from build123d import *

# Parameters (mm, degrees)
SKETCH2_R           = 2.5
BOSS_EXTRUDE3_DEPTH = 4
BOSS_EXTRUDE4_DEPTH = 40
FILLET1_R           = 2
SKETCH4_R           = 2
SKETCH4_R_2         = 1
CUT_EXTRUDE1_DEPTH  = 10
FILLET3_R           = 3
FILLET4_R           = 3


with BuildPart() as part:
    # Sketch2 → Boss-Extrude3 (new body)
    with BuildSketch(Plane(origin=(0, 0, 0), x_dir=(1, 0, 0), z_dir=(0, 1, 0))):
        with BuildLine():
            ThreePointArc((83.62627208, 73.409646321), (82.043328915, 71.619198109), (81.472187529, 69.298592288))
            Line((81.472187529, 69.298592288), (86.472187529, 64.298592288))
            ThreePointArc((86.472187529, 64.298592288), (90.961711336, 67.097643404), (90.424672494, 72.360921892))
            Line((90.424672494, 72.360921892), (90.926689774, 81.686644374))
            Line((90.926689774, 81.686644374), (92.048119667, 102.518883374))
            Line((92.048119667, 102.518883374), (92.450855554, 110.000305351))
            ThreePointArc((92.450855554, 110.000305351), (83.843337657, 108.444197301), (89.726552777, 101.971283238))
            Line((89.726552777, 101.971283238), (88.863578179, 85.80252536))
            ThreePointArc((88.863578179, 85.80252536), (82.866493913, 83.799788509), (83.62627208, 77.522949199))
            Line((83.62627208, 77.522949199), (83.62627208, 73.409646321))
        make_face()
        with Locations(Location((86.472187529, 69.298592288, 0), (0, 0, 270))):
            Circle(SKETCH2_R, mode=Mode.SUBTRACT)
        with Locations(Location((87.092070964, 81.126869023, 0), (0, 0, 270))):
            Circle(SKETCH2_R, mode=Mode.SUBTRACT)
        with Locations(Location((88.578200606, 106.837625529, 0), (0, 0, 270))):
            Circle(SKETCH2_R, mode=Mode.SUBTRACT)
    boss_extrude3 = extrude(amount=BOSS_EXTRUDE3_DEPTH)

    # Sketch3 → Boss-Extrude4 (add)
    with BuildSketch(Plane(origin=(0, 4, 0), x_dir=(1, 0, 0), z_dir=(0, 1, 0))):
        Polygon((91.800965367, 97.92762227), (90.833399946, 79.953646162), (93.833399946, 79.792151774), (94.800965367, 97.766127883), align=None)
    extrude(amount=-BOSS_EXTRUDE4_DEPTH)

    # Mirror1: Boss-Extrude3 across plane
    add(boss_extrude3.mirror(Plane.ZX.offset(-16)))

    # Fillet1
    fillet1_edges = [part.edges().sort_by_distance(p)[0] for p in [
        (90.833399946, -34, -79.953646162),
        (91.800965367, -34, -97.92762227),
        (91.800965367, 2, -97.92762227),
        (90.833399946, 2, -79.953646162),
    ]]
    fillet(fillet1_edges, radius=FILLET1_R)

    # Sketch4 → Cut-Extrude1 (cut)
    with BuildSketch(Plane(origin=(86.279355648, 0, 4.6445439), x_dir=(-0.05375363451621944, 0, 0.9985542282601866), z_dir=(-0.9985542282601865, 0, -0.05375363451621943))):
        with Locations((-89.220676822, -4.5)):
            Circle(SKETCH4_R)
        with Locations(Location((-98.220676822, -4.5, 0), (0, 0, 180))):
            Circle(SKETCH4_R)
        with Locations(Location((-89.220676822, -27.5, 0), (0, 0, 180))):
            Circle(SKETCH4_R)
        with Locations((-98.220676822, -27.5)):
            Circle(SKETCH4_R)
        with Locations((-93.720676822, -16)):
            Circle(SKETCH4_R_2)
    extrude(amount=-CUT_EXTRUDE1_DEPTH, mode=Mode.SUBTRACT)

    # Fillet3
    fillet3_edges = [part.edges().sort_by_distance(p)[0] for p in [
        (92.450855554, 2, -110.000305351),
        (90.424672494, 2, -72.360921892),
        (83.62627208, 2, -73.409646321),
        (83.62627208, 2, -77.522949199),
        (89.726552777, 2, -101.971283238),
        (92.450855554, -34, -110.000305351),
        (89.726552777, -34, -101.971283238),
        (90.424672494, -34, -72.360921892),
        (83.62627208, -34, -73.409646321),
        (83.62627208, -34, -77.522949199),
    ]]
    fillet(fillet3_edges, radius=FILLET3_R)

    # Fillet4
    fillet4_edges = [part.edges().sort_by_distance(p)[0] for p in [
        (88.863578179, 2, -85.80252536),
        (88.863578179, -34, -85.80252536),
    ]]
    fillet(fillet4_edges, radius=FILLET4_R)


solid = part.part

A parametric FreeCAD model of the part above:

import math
import FreeCAD as App
import Part
import Sketcher
Q = App.Units.Quantity


def edges_at(feature, points):
    """Names of the edges that pass closest to the given points."""
    edges = feature.Shape.Edges
    near = lambda p: min(range(len(edges)), key=lambda i: edges[i].distToShape(Part.Vertex(*p))[0])
    return sorted({f"Edge{near(p) + 1}" for p in points})


def add_polygon(sketch, points):
    """Adds a closed chain of lines whose ends are joined by coincident constraints."""
    first, n = sketch.GeometryCount, len(points)
    for a, b in zip(points, points[1:] + points[:1]):
        sketch.addGeometry(Part.LineSegment(App.Vector(*a, 0), App.Vector(*b, 0)), False)
    for i in range(n):
        sketch.addConstraint(Sketcher.Constraint("Coincident", first + i, 2, first + (i + 1) % n, 1))

doc = App.newDocument("Part")
body = doc.addObject("PartDesign::Body", "Body")

# Sketch on XZ plane
sketch1 = doc.addObject("Sketcher::SketchObject", "Sketch")
body.addObject(sketch1)
sketch1.AttachmentSupport = (doc.XZ_Plane, [""])
sketch1.MapMode = "FlatFace"
sketch1.addGeometry([
    Part.ArcOfCircle(Part.Circle(App.Vector(86.472188, -69.298592, 0), App.Vector(0, 0, 1), 5), math.radians(-180), math.radians(-124.69328)),  # 0
    Part.LineSegment(App.Vector(81.472188, -69.298592, 0), App.Vector(86.472188, -64.298592, 0)),  # 1
    Part.ArcOfCircle(Part.Circle(App.Vector(86.472188, -69.298592, 0), App.Vector(0, 0, 1), 5), math.radians(-37.768019), math.radians(90)),  # 2
    Part.LineSegment(App.Vector(90.424672, -72.360922, 0), App.Vector(90.92669, -81.686644, 0)),  # 3
    Part.LineSegment(App.Vector(90.92669, -81.686644, 0), App.Vector(92.04812, -102.518883, 0)),  # 4
    Part.LineSegment(App.Vector(92.04812, -102.518883, 0), App.Vector(92.450856, -110.000305, 0)),  # 5
    Part.ArcOfCircle(Part.Circle(App.Vector(88.578201, -106.837626, 0), App.Vector(0, 0, 1), 5), math.radians(76.72233), math.radians(320.76253)),  # 6
    Part.LineSegment(App.Vector(89.726553, -101.971283, 0), App.Vector(88.863578, -85.802525, 0)),  # 7
    Part.ArcOfCircle(Part.Circle(App.Vector(87.092071, -81.126869, 0), App.Vector(0, 0, 1), 5), math.radians(133.880756), math.radians(290.750638)),  # 8
    Part.LineSegment(App.Vector(83.626272, -77.522949, 0), App.Vector(83.626272, -73.409646, 0)),  # 9
    Part.Circle(App.Vector(86.472188, -69.298592, 0), App.Vector(0, 0, 1), 2.5),  # 10
    Part.Circle(App.Vector(87.092071, -81.126869, 0), App.Vector(0, 0, 1), 2.5),  # 11
    Part.Circle(App.Vector(88.578201, -106.837626, 0), App.Vector(0, 0, 1), 2.5),  # 12
], False)
sketch1.addConstraint([
    Sketcher.Constraint("Coincident", 0, 1, 1, 1),
    Sketcher.Constraint("Coincident", 1, 2, 2, 2),
    Sketcher.Constraint("Coincident", 2, 1, 3, 1),
    Sketcher.Constraint("Coincident", 3, 2, 4, 1),
    Sketcher.Constraint("Coincident", 4, 2, 5, 1),
    Sketcher.Constraint("Coincident", 5, 2, 6, 2),
    Sketcher.Constraint("Coincident", 6, 1, 7, 1),
    Sketcher.Constraint("Coincident", 7, 2, 8, 2),
    Sketcher.Constraint("Coincident", 8, 1, 9, 1),
    Sketcher.Constraint("Coincident", 9, 2, 0, 2),
    Sketcher.Constraint("Vertical", 9),
    Sketcher.Constraint("Coincident", 2, 3, 0, 3),
    Sketcher.Constraint("Coincident", 10, 3, 0, 3),
    Sketcher.Constraint("Coincident", 11, 3, 8, 3),
    Sketcher.Constraint("Coincident", 12, 3, 6, 3),
    Sketcher.Constraint("Diameter", 10, Q("5 mm")),
    Sketcher.Constraint("Diameter", 11, Q("5 mm")),
    Sketcher.Constraint("Diameter", 12, Q("5 mm")),
    Sketcher.Constraint("Radius", 0, Q("5 mm")),
    Sketcher.Constraint("Radius", 2, Q("5 mm")),
    Sketcher.Constraint("Radius", 6, Q("5 mm")),
    Sketcher.Constraint("Radius", 8, Q("5 mm")),
    Sketcher.Constraint("DistanceX", 0, 1, 1, 2, Q("5 mm")),
    Sketcher.Constraint("DistanceY", 0, 1, 1, 2, Q("5 mm")),
    Sketcher.Constraint("Distance", 4, Q("20.862401 mm")),
    Sketcher.Constraint("DistanceX", -1, 1, 6, 3, Q("88.578201 mm")),
    Sketcher.Constraint("DistanceX", 8, 3, 2, 1, Q("3.332602 mm")),
    Sketcher.Constraint("DistanceY", 4, 2, 6, 1, Q("0.5476 mm")),
    Sketcher.Constraint("DistanceX", 8, 1, 8, 3, Q("3.465799 mm")),
    Sketcher.Constraint("Distance", 7, Q("16.191771 mm")),
    Sketcher.Constraint("DistanceY", 9, 1, 9, 2, Q("4.113303 mm")),
    Sketcher.Constraint("DistanceX", -1, 1, 8, 3, Q("87.092071 mm")),
    Sketcher.Constraint("DistanceY", 8, 3, -1, 1, Q("81.126869 mm")),
    Sketcher.Constraint("DistanceY", 2, 1, -1, 1, Q("72.360922 mm")),
    Sketcher.Constraint("DistanceX", -1, 1, 3, 2, Q("90.92669 mm")),
    Sketcher.Constraint("DistanceX", -1, 1, 4, 2, Q("92.04812 mm")),
    Sketcher.Constraint("DistanceX", -1, 1, 7, 2, Q("88.863578 mm")),
    Sketcher.Constraint("DistanceY", 5, 2, 6, 3, Q("3.16268 mm")),
    Sketcher.Constraint("DistanceY", 5, 2, 4, 2, Q("7.481422 mm")),
])
pad1 = doc.addObject("PartDesign::Pad", "Pad")
body.addObject(pad1)
pad1.Profile = sketch1
pad1.Length = 4
pad1.Reversed = True

# Sketch on XZ plane
sketch2 = doc.addObject("Sketcher::SketchObject", "Sketch001")
body.addObject(sketch2)
sketch2.AttachmentSupport = (doc.XZ_Plane, [""])
sketch2.MapMode = "FlatFace"
sketch2.AttachmentOffset = App.Placement(App.Vector(0, 0, -4), App.Rotation())
add_polygon(sketch2, [(91.800965, -97.927622), (90.8334, -79.953646), (93.8334, -79.792152), (94.800965, -97.766128)])  # lines 0-3
sketch2.addConstraint([
    Sketcher.Constraint("Perpendicular", 0, 1),
    Sketcher.Constraint("Perpendicular", 1, 2),
    Sketcher.Constraint("Perpendicular", 2, 3),
    Sketcher.Constraint("Distance", 0, Q("18 mm")),
    Sketcher.Constraint("DistanceX", 0, 2, 1, 2, Q("3 mm")),
    Sketcher.Constraint("DistanceX", -1, 1, 0, 2, Q("90.8334 mm")),
    Sketcher.Constraint("DistanceY", 1, 2, -1, 1, Q("79.792152 mm")),
    Sketcher.Constraint("DistanceY", 2, 2, 0, 2, Q("17.812482 mm")),
])
pad2 = doc.addObject("PartDesign::Pad", "Pad001")
body.addObject(pad2)
pad2.Profile = sketch2
pad2.Length = 40
doc.recompute()

datumplane = doc.addObject("PartDesign::Plane", "DatumPlane")
body.addObject(datumplane)
datumplane.AttachmentSupport = (doc.XZ_Plane, [""])
datumplane.MapMode = "FlatFace"
datumplane.AttachmentOffset = App.Placement(App.Vector(0, 0, 16), App.Rotation())
mirrored = doc.addObject("PartDesign::Mirrored", "Mirrored")
body.addObject(mirrored)
mirrored.Originals = [pad1]
mirrored.MirrorPlane = (datumplane, [""])
body.Tip = mirrored
doc.recompute()

fillet = doc.addObject("PartDesign::Fillet", "Fillet")
body.addObject(fillet)
fillet.Base = (mirrored, edges_at(mirrored, [
    (90.833, -34, -79.954),
    (91.801, -34, -97.928),
    (91.801, 2, -97.928),
    (90.833, 2, -79.954),
]))
fillet.Radius = 2

# Sketch on an angled plane
sketch3 = doc.addObject("Sketcher::SketchObject", "Sketch002")
body.addObject(sketch3)
sketch3.Placement = App.Placement(App.Vector(86.279356, 0, 4.644544), App.Rotation(App.Vector(-0.053753635, 0, 0.998554228), App.Vector(0, 1, 0), App.Vector(-0.998554228, 0, -0.053753635), "ZXY"))
sketch3.addGeometry([
    Part.Circle(App.Vector(-89.220677, -4.5, 0), App.Vector(0, 0, 1), 2),  # 0
    Part.Circle(App.Vector(-98.220677, -4.5, 0), App.Vector(0, 0, 1), 2),  # 1
    Part.Circle(App.Vector(-89.220677, -27.5, 0), App.Vector(0, 0, 1), 2),  # 2
    Part.Circle(App.Vector(-98.220677, -27.5, 0), App.Vector(0, 0, 1), 2),  # 3
    Part.Circle(App.Vector(-93.720677, -16, 0), App.Vector(0, 0, 1), 1),  # 4
], False)
sketch3.addConstraint([
    Sketcher.Constraint("Equal", 0, 1),
    Sketcher.Constraint("Equal", 1, 2),
    Sketcher.Constraint("Equal", 2, 3),
    Sketcher.Constraint("Horizontal", 0, 3, 1, 3),
    Sketcher.Constraint("Horizontal", 2, 3, 3, 3),
    Sketcher.Constraint("Vertical", 0, 3, 2, 3),
    Sketcher.Constraint("Vertical", 1, 3, 3, 3),
    Sketcher.Constraint("Diameter", 0, Q("4 mm")),
    Sketcher.Constraint("Diameter", 4, Q("2 mm")),
    Sketcher.Constraint("DistanceY", 4, 3, -1, 1, Q("16 mm")),
    Sketcher.Constraint("DistanceX", 1, 3, 0, 3, Q("9 mm")),
    Sketcher.Constraint("DistanceY", 2, 3, 0, 3, Q("23 mm")),
    Sketcher.Constraint("DistanceY", 0, 3, -1, 1, Q("4.5 mm")),
    Sketcher.Constraint("DistanceX", 4, 3, 0, 3, Q("4.5 mm")),
    Sketcher.Constraint("DistanceX", 0, 3, -1, 1, Q("89.220677 mm")),
])
pocket1 = doc.addObject("PartDesign::Pocket", "Pocket")
body.addObject(pocket1)
pocket1.Profile = sketch3
pocket1.Length = 10
doc.recompute()

fillet2 = doc.addObject("PartDesign::Fillet", "Fillet001")
body.addObject(fillet2)
fillet2.Base = (pocket1, edges_at(pocket1, [
    (92.451, 2, -110),
    (90.425, 2, -72.361),
    (83.626, 2, -73.41),
    (83.626, 2, -77.523),
    (89.727, 2, -101.971),
    (92.451, -34, -110),
    (89.727, -34, -101.971),
    (90.425, -34, -72.361),
    (83.626, -34, -73.41),
    (83.626, -34, -77.523),
]))
fillet2.Radius = 3
doc.recompute()

fillet3 = doc.addObject("PartDesign::Fillet", "Fillet002")
body.addObject(fillet3)
fillet3.Base = (fillet2, edges_at(fillet2, [(88.864, 2, -85.803), (88.864, -34, -85.803)]))
fillet3.Radius = 3

doc.recompute()
